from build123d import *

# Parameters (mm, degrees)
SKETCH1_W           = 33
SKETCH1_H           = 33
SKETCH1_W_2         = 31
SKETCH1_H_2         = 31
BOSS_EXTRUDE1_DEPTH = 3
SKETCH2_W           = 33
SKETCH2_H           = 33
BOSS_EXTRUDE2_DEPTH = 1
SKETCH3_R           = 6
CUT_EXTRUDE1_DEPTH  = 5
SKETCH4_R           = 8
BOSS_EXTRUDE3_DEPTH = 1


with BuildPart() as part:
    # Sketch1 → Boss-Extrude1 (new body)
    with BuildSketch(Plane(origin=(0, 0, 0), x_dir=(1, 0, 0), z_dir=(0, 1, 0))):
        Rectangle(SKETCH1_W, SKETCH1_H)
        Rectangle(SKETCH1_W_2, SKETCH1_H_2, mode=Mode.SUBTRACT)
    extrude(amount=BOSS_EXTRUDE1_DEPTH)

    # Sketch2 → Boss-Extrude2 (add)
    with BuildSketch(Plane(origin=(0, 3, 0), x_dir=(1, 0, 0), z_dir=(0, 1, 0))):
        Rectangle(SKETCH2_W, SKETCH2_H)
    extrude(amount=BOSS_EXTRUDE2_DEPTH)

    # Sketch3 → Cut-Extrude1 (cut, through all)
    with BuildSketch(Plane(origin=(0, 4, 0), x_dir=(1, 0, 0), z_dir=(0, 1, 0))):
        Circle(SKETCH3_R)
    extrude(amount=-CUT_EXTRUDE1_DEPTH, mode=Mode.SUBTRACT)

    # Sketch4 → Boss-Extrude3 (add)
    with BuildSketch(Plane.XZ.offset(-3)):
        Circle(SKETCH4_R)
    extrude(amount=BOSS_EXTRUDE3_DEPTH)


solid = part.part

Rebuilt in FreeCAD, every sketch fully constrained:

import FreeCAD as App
import Part
import Sketcher
Q = App.Units.Quantity

doc = App.newDocument("Part")
params = doc.addObject("Spreadsheet::Sheet", "Params")
for row, (alias, value) in enumerate([
    ("sketch1_width", "33 mm"),
    ("sketch1_width2", "31 mm"),
    ("pad1_length", "3 mm"),
    ("sketch2_width", "33 mm"),
    ("pad2_length", "1 mm"),
    ("sketch3_diameter", "12 mm"),
    ("sketch4_diameter", "16 mm"),
    ("pad3_length", "1 mm"),
], start=1):
    params.set(f"A{row}", alias)
    params.set(f"B{row}", "=" + value)
    params.setAlias(f"B{row}", alias)

body = doc.addObject("PartDesign::Body", "Body")

sketch1 = body.newObject("Sketcher::SketchObject", "Sketch")
sketch1.AttachmentSupport = (doc.getObject("XZ_Plane"), [""])
sketch1.MapMode = "FlatFace"
sketch1.addGeometry([
    Part.LineSegment(App.Vector(-16, -16, 0), App.Vector(-16, 16, 0)),
    Part.LineSegment(App.Vector(-16, 16, 0), App.Vector(16, 16, 0)),
    Part.LineSegment(App.Vector(16, 16, 0), App.Vector(16, -16, 0)),
    Part.LineSegment(App.Vector(16, -16, 0), App.Vector(-16, -16, 0)),
    Part.LineSegment(App.Vector(16, 16, 0), App.Vector(-16, 16, 0)),
    Part.LineSegment(App.Vector(-16, 16, 0), App.Vector(-16, -16, 0)),
    Part.LineSegment(App.Vector(-16, -16, 0), App.Vector(16, -16, 0)),
    Part.LineSegment(App.Vector(16, -16, 0), App.Vector(16, 16, 0)),
], False)
sketch1.addConstraint([
    Sketcher.Constraint("Coincident", 0, 2, 1, 1),
    Sketcher.Constraint("Coincident", 1, 2, 2, 1),
    Sketcher.Constraint("Coincident", 2, 2, 3, 1),
    Sketcher.Constraint("Coincident", 3, 2, 0, 1),
    Sketcher.Constraint("Coincident", 4, 2, 5, 1),
    Sketcher.Constraint("Coincident", 5, 2, 6, 1),
    Sketcher.Constraint("Coincident", 6, 2, 7, 1),
    Sketcher.Constraint("Coincident", 7, 2, 4, 1),
    Sketcher.Constraint("Vertical", 0),
    Sketcher.Constraint("Horizontal", 1),
    Sketcher.Constraint("Vertical", 2),
    Sketcher.Constraint("Horizontal", 3),
    Sketcher.Constraint("Horizontal", 4),
    Sketcher.Constraint("Vertical", 5),
    Sketcher.Constraint("Horizontal", 6),
    Sketcher.Constraint("Vertical", 7),
    Sketcher.Constraint("Symmetric", 0, 2, 2, 2, -1, 1),
    Sketcher.Constraint("Symmetric", 4, 2, 6, 2, -1, 1),
    Sketcher.Constraint("Equal", 3, 0),
    Sketcher.Constraint("Equal", 6, 5),
    Sketcher.Constraint("DistanceX", 1, 1, 1, 2, Q("33 mm")),
    Sketcher.Constraint("DistanceX", 4, 2, 4, 1, Q("31 mm")),
])
sketch1.setExpression("Constraints[20]", "Params.sketch1_width")
sketch1.setExpression("Constraints[21]", "Params.sketch1_width2")
pad1 = body.newObject("PartDesign::Pad", "Pad")
pad1.Profile = sketch1
pad1.setExpression("Length", "Params.pad1_length")
pad1.Reversed = True

sketch2 = body.newObject("Sketcher::SketchObject", "Sketch001")
sketch2.AttachmentSupport = (doc.getObject("XZ_Plane"), [""])
sketch2.MapMode = "FlatFace"
sketch2.AttachmentOffset = App.Placement(App.Vector(0, 0, -3), App.Rotation())
sketch2.addGeometry([
    Part.LineSegment(App.Vector(-16, -16, 0), App.Vector(-16, 16, 0)),
    Part.LineSegment(App.Vector(-16, 16, 0), App.Vector(16, 16, 0)),
    Part.LineSegment(App.Vector(16, 16, 0), App.Vector(16, -16, 0)),
    Part.LineSegment(App.Vector(16, -16, 0), App.Vector(-16, -16, 0)),
], False)
sketch2.addConstraint([
    Sketcher.Constraint("Coincident", 0, 2, 1, 1),
    Sketcher.Constraint("Coincident", 1, 2, 2, 1),
    Sketcher.Constraint("Coincident", 2, 2, 3, 1),
    Sketcher.Constraint("Coincident", 3, 2, 0, 1),
    Sketcher.Constraint("Vertical", 0),
    Sketcher.Constraint("Horizontal", 1),
    Sketcher.Constraint("Vertical", 2),
    Sketcher.Constraint("Horizontal", 3),
    Sketcher.Constraint("Symmetric", 0, 2, 2, 2, -1, 1),
    Sketcher.Constraint("Equal", 3, 0),
    Sketcher.Constraint("DistanceX", 1, 1, 1, 2, Q("33 mm")),
])
sketch2.setExpression("Constraints[10]", "Params.sketch2_width")
pad2 = body.newObject("PartDesign::Pad", "Pad001")
pad2.Profile = sketch2
pad2.setExpression("Length", "Params.pad2_length")
pad2.Reversed = True

sketch3 = body.newObject("Sketcher::SketchObject", "Sketch002")
sketch3.AttachmentSupport = (doc.getObject("XZ_Plane"), [""])
sketch3.MapMode = "FlatFace"
sketch3.AttachmentOffset = App.Placement(App.Vector(0, 0, -4), App.Rotation())
sketch3.addGeometry(Part.Circle(App.Vector(0, 0, 0), App.Vector(0, 0, 1), 6), False)
sketch3.addConstraint([
    Sketcher.Constraint("Coincident", 0, 3, -1, 1),
    Sketcher.Constraint("Diameter", 0, Q("12 mm")),
])
sketch3.setExpression("Constraints[1]", "Params.sketch3_diameter")
pocket1 = body.newObject("PartDesign::Pocket", "Pocket")
pocket1.Profile = sketch3
pocket1.Type = "ThroughAll"
pocket1.Reversed = True

sketch4 = body.newObject("Sketcher::SketchObject", "Sketch003")
sketch4.AttachmentSupport = (doc.getObject("XZ_Plane"), [""])
sketch4.MapMode = "FlatFace"
sketch4.AttachmentOffset = App.Placement(App.Vector(0, 0, -3), App.Rotation())
sketch4.addGeometry(Part.Circle(App.Vector(0, 0, 0), App.Vector(0, 0, 1), 8), False)
sketch4.addConstraint([
    Sketcher.Constraint("Coincident", 0, 3, -1, 1),
    Sketcher.Constraint("Diameter", 0, Q("16 mm")),
])
sketch4.setExpression("Constraints[1]", "Params.sketch4_diameter")
pad3 = body.newObject("PartDesign::Pad", "Pad002")
pad3.Profile = sketch4
pad3.setExpression("Length", "Params.pad3_length")

doc.recompute()
